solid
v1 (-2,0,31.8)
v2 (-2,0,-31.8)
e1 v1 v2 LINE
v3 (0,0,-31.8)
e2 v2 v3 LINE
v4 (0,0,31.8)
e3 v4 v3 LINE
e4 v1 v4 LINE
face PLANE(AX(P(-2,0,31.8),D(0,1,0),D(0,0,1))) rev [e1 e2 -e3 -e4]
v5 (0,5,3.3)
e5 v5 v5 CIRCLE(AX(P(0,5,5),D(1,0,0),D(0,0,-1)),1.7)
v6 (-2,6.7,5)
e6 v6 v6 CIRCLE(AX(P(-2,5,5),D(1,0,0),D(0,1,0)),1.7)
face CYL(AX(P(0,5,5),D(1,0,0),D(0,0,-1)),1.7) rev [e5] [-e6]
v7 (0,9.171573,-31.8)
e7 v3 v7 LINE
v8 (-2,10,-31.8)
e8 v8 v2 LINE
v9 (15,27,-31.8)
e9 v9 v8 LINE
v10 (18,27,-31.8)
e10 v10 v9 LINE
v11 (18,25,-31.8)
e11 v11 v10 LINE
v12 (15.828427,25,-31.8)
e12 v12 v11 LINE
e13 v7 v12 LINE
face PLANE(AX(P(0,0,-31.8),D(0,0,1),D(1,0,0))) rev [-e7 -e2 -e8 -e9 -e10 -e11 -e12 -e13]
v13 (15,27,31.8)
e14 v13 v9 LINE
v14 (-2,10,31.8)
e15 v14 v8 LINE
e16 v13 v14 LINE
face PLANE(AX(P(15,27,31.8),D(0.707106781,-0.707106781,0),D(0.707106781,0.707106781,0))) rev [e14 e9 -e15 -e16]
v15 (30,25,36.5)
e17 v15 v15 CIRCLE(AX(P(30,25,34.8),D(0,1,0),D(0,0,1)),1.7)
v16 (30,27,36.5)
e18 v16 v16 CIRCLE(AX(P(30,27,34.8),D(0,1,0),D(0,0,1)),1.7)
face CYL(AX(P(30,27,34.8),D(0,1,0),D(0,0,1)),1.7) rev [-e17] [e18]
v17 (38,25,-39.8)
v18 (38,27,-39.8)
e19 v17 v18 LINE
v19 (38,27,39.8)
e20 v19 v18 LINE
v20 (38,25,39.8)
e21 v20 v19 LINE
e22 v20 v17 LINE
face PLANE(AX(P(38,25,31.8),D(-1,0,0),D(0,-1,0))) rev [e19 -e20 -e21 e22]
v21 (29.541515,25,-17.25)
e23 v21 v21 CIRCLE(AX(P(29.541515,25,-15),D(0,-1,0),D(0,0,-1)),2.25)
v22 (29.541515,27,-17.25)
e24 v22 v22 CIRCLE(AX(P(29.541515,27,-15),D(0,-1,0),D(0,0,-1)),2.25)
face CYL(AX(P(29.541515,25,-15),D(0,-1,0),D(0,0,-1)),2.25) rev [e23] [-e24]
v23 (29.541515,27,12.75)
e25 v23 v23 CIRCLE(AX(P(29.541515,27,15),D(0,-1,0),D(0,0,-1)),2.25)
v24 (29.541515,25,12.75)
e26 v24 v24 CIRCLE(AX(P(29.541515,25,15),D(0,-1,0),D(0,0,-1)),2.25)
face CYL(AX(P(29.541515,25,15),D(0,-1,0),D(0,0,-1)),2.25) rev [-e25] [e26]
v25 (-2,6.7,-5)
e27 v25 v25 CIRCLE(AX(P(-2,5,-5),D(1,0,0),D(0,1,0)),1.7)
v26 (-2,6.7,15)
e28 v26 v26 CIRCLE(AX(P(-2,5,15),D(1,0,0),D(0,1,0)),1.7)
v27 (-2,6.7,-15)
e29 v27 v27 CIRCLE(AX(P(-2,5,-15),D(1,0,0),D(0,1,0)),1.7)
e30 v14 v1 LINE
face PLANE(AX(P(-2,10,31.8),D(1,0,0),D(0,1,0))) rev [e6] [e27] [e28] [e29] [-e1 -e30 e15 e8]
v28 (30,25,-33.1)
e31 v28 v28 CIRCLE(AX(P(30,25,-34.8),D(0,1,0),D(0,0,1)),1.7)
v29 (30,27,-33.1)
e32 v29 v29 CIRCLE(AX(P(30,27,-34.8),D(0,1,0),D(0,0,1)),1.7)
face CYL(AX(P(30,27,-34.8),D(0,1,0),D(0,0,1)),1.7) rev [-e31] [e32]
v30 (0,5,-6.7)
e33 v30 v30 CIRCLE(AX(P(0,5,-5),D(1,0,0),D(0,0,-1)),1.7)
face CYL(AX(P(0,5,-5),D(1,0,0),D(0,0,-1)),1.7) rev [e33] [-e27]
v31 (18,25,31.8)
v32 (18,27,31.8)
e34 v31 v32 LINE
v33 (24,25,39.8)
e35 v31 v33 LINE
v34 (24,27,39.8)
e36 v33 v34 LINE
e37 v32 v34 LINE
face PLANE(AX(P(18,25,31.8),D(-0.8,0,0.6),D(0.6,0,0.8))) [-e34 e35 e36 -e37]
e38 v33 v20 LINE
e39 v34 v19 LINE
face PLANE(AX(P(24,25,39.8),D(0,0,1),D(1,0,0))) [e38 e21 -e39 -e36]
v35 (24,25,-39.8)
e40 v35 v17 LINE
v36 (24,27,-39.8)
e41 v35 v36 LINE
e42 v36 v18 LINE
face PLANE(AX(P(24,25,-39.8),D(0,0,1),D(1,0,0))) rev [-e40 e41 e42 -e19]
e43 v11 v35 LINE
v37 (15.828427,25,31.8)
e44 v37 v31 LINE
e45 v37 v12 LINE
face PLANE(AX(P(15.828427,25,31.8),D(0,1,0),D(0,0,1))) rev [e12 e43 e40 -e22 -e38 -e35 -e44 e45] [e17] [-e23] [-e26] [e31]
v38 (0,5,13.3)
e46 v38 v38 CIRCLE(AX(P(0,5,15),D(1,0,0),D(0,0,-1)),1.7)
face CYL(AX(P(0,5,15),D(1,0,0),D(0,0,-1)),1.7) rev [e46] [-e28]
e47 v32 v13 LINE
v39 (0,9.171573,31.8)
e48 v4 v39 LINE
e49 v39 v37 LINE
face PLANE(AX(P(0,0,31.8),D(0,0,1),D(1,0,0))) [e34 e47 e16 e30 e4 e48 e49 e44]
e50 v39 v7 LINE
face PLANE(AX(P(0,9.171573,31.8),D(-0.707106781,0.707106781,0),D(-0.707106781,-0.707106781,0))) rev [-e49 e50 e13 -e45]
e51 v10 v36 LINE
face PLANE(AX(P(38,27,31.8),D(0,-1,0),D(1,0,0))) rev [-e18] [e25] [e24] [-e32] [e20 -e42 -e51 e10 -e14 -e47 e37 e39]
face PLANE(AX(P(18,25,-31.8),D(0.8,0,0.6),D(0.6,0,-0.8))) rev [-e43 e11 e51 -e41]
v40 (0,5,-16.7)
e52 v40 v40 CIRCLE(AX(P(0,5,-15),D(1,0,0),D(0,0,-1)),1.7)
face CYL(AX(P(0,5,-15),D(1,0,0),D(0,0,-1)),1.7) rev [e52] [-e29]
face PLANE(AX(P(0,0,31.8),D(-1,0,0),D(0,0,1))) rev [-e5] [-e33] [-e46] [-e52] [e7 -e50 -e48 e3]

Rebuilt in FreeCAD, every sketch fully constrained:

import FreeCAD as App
import Part
import Sketcher
from FreeCAD import Vector
Q = App.Units.Quantity

doc = App.newDocument("Part")
params = doc.addObject("Spreadsheet::Sheet", "Params")
for row, (alias, value) in enumerate([
    ("sketch1_width", "23 mm"),
    ("sketch1_width2", "2 mm"),
    ("sketch1_height", "10 mm"),
    ("pad1_length", "63.6 mm"),
    ("sketch2_diameter", "3.4 mm"),
    ("hole_diameter", "3.4 mm"),
    ("hole_depth", "5 mm"),
    ("sketch3_width", "14 mm"),
    ("sketch3_width2", "20 mm"),
    ("sketch3_height", "8 mm"),
    ("pad2_length", "2 mm"),
    ("sketch4_diameter", "3.4 mm"),
    ("hole2_diameter", "3.4 mm"),
    ("hole2_depth", "5 mm"),
    ("sketch5_diameter", "4.5 mm"),
    ("hole3_diameter", "4.5 mm"),
], start=1):
    params.set(f"A{row}", alias)
    params.set(f"B{row}", "=" + value)
    params.setAlias(f"B{row}", alias)

body = doc.addObject("PartDesign::Body", "Body")

# Sketch on XY plane
sketch1 = body.newObject("Sketcher::SketchObject", "Sketch")
sketch1.AttachmentSupport = (doc.getObject("XY_Plane"), [""])
sketch1.MapMode = "FlatFace"
sketch1.addGeometry([
    Part.LineSegment(Vector(0, 0, 0), Vector(0, 9.2, 0)),  # 0
    Part.LineSegment(Vector(0, 9.2, 0), Vector(15.8, 25, 0)),  # 1
    Part.LineSegment(Vector(15.8, 25, 0), Vector(38, 25, 0)),  # 2
    Part.LineSegment(Vector(38, 25, 0), Vector(38, 27, 0)),  # 3
    Part.LineSegment(Vector(38, 27, 0), Vector(15, 27, 0)),  # 4
    Part.LineSegment(Vector(15, 27, 0), Vector(-2, 10, 0)),  # 5
    Part.LineSegment(Vector(-2, 10, 0), Vector(-2, 0, 0)),  # 6
    Part.LineSegment(Vector(-2, 0, 0), Vector(0, 0, 0)),  # 7
], False)
sketch1.addConstraint([
    Sketcher.Constraint("Coincident", 0, 2, 1, 1),
    Sketcher.Constraint("Coincident", 1, 2, 2, 1),
    Sketcher.Constraint("Coincident", 2, 2, 3, 1),
    Sketcher.Constraint("Coincident", 3, 2, 4, 1),
    Sketcher.Constraint("Coincident", 4, 2, 5, 1),
    Sketcher.Constraint("Coincident", 5, 2, 6, 1),
    Sketcher.Constraint("Coincident", 6, 2, 7, 1),
    Sketcher.Constraint("Coincident", 7, 2, 0, 1),
    Sketcher.Constraint("Vertical", 0),
    Sketcher.Constraint("Horizontal", 2),
    Sketcher.Constraint("Vertical", 3),
    Sketcher.Constraint("Horizontal", 4),
    Sketcher.Constraint("Vertical", 6),
    Sketcher.Constraint("Horizontal", 7),
    Sketcher.Constraint("Coincident", 7, 2, -1, 1),
    Sketcher.Constraint("Parallel", 1, 5),
    Sketcher.Constraint("Equal", 7, 3),
    Sketcher.Constraint("DistanceX", 4, 2, 4, 1, Q("23 mm")),
    Sketcher.Constraint("DistanceX", 7, 1, 7, 2, Q("2 mm")),
    Sketcher.Constraint("DistanceY", 6, 2, 6, 1, Q("10 mm")),
    Sketcher.Constraint("Angle", 1, Q("45 deg")),
    Sketcher.Constraint("DistanceY", -1, 1, 1, 2, Q("25 mm")),
    Sketcher.Constraint("DistanceX", 2, 1, 2, 2, Q("22.171573 mm")),
])
sketch1.setExpression("Constraints[17]", "Params.sketch1_width")
sketch1.setExpression("Constraints[18]", "Params.sketch1_width2")
sketch1.setExpression("Constraints[19]", "Params.sketch1_height")
pad1 = body.newObject("PartDesign::Pad", "Pad")
pad1.Profile = sketch1
pad1.setExpression("Length", "Params.pad1_length")
pad1.Midplane = True

# Sketch on YZ plane
sketch2 = body.newObject("Sketcher::SketchObject", "Sketch001")
sketch2.AttachmentSupport = (doc.getObject("YZ_Plane"), [""])
sketch2.MapMode = "FlatFace"
sketch2.addGeometry([
    Part.Circle(Vector(5, -5, 0), Vector(0, 0, 1), 1.7),
    Part.Circle(Vector(5, 5, 0), Vector(0, 0, 1), 1.7),
    Part.Circle(Vector(5, 15, 0), Vector(0, 0, 1), 1.7),
    Part.Circle(Vector(5, -15, 0), Vector(0, 0, 1), 1.7),
], False)
sketch2.addConstraint([
    Sketcher.Constraint("Equal", 0, 1),
    Sketcher.Constraint("Equal", 1, 2),
    Sketcher.Constraint("Equal", 2, 3),
    Sketcher.Constraint("Symmetric", 0, 3, 1, 3, -1),
    Sketcher.Constraint("Symmetric", 2, 3, 3, 3, -1),
    Sketcher.Constraint("Vertical", 1, 3, 2, 3),
    Sketcher.Constraint("Diameter", 0, Q("3.4 mm")),
    Sketcher.Constraint("DistanceX", -1, 1, 0, 3, Q("5 mm")),
    Sketcher.Constraint("DistanceY", 0, 3, -1, 1, Q("5 mm")),
    Sketcher.Constraint("DistanceY", -1, 1, 2, 3, Q("15 mm")),
])
sketch2.setExpression("Constraints[6]", "Params.sketch2_diameter")
doc.recompute()
hole = body.newObject("PartDesign::Hole", "Hole")
hole.Profile = sketch2
hole.ThreadType = "None"
hole.setExpression("Diameter", "Params.hole_diameter")
hole.DepthType = "Dimension"
hole.setExpression("Depth", "Params.hole_depth")
hole.DrillPoint = "Angled"
hole.DrillPointAngle = 118

# Sketch on XZ plane
sketch3 = body.newObject("Sketcher::SketchObject", "Sketch002")
sketch3.AttachmentSupport = (doc.getObject("XZ_Plane"), [""])
sketch3.MapMode = "FlatFace"
sketch3.AttachmentOffset = App.Placement(Vector(0, 0, -27), App.Rotation())
sketch3.addGeometry([
    Part.LineSegment(Vector(18, 32, 0), Vector(24, 40, 0)),
    Part.LineSegment(Vector(24, 40, 0), Vector(38, 40, 0)),
    Part.LineSegment(Vector(38, 40, 0), Vector(38, 32, 0)),
    Part.LineSegment(Vector(38, 32, 0), Vector(18, 32, 0)),
], False)
sketch3.addConstraint([
    Sketcher.Constraint("Coincident", 0, 2, 1, 1),
    Sketcher.Constraint("Coincident", 1, 2, 2, 1),
    Sketcher.Constraint("Coincident", 2, 2, 3, 1),
    Sketcher.Constraint("Coincident", 3, 2, 0, 1),
    Sketcher.Constraint("Horizontal", 1),
    Sketcher.Constraint("Vertical", 2),
    Sketcher.Constraint("Horizontal", 3),
    Sketcher.Constraint("DistanceX", 1, 1, 1, 2, Q("14 mm")),
    Sketcher.Constraint("DistanceX", 3, 2, 3, 1, Q("20 mm")),
    Sketcher.Constraint("DistanceY", 2, 2, 2, 1, Q("8 mm")),
    Sketcher.Constraint("DistanceX", -1, 1, 0, 2, Q("24 mm")),
    Sketcher.Constraint("DistanceY", -1, 1, 0, 2, Q("39.8 mm")),
])
sketch3.setExpression("Constraints[7]", "Params.sketch3_width")
sketch3.setExpression("Constraints[8]", "Params.sketch3_width2")
sketch3.setExpression("Constraints[9]", "Params.sketch3_height")
pad2 = body.newObject("PartDesign::Pad", "Pad001")
pad2.Profile = sketch3
pad2.setExpression("Length", "Params.pad2_length")
doc.recompute()

mirrored = body.newObject("PartDesign::Mirrored", "Mirrored")
mirrored.Originals = [pad2]
mirrored.MirrorPlane = (doc.getObject("XY_Plane"), [""])
body.Tip = mirrored

# Sketch on XZ plane
sketch4 = body.newObject("Sketcher::SketchObject", "Sketch003")
sketch4.AttachmentSupport = (doc.getObject("XZ_Plane"), [""])
sketch4.MapMode = "FlatFace"
sketch4.AttachmentOffset = App.Placement(Vector(0, 0, -27), App.Rotation())
sketch4.addGeometry([
    Part.Circle(Vector(30, -34.8, 0), Vector(0, 0, 1), 1.7),
    Part.Circle(Vector(30, 34.8, 0), Vector(0, 0, 1), 1.7),
], False)
sketch4.addConstraint([
    Sketcher.Constraint("Equal", 0, 1),
    Sketcher.Constraint("Symmetric", 0, 3, 1, 3, -1),
    Sketcher.Constraint("Diameter", 0, Q("3.4 mm")),
    Sketcher.Constraint("DistanceX", -1, 1, 0, 3, Q("30 mm")),
    Sketcher.Constraint("DistanceY", 0, 3, -1, 1, Q("34.8 mm")),
])
sketch4.setExpression("Constraints[2]", "Params.sketch4_diameter")
doc.recompute()
hole2 = body.newObject("PartDesign::Hole", "Hole001")
hole2.Profile = sketch4
hole2.ThreadType = "None"
hole2.setExpression("Diameter", "Params.hole2_diameter")
hole2.DepthType = "Dimension"
hole2.setExpression("Depth", "Params.hole2_depth")
hole2.DrillPoint = "Angled"
hole2.DrillPointAngle = 118
hole2.Reversed = True

# Sketch on XZ plane
sketch5 = body.newObject("Sketcher::SketchObject", "Sketch004")
sketch5.AttachmentSupport = (doc.getObject("XZ_Plane"), [""])
sketch5.MapMode = "FlatFace"
sketch5.AttachmentOffset = App.Placement(Vector(0, 0, -25), App.Rotation())
sketch5.addGeometry([
    Part.Circle(Vector(29.5, -15, 0), Vector(0, 0, 1), 2.2),
    Part.Circle(Vector(29.5, 15, 0), Vector(0, 0, 1), 2.2),
], False)
sketch5.addConstraint([
    Sketcher.Constraint("Equal", 0, 1),
    Sketcher.Constraint("Symmetric", 0, 3, 1, 3, -1),
    Sketcher.Constraint("Diameter", 0, Q("4.5 mm")),
    Sketcher.Constraint("DistanceY", 0, 3, -1, 1, Q("15 mm")),
    Sketcher.Constraint("DistanceX", -1, 1, 0, 3, Q("29.541515 mm")),
])
sketch5.setExpression("Constraints[2]", "Params.sketch5_diameter")
doc.recompute()
hole3 = body.newObject("PartDesign::Hole", "Hole002")
hole3.Profile = sketch5
hole3.ThreadType = "None"
hole3.setExpression("Diameter", "Params.hole3_diameter")
hole3.DepthType = "ThroughAll"

doc.recompute()
